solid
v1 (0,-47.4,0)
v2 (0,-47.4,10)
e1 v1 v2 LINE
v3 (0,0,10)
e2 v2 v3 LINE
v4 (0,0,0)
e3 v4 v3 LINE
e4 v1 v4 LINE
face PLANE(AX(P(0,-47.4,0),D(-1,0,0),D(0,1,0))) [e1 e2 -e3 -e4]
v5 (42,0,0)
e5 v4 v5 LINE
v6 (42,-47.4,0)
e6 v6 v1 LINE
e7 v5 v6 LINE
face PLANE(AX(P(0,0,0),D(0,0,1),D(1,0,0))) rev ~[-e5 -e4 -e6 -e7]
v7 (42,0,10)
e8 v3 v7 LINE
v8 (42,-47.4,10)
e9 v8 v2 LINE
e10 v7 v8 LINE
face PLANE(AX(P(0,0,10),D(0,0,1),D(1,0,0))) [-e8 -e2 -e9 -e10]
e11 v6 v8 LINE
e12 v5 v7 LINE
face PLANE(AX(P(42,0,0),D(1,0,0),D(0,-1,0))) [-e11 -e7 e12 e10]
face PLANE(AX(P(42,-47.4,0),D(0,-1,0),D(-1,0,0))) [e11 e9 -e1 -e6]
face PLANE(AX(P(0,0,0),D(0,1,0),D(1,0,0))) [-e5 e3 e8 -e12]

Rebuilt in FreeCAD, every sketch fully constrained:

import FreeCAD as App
import Part
import Sketcher

V = App.Vector
Q = App.Units.Quantity

doc = App.newDocument("Part")
body = doc.addObject("PartDesign::Body", "Body")

# Sketch on XY plane
sketch1 = doc.addObject("Sketcher::SketchObject", "Sketch")
body.addObject(sketch1)
sketch1.AttachmentSupport = (doc.XY_Plane, [""])
sketch1.MapMode = "FlatFace"
sketch1.addGeometry(Part.LineSegment(V(42, 0, 0), V(0, 0, 0)), False)
sketch1.addGeometry(Part.LineSegment(V(0, 0, 0), V(0, -47, 0)), False)
sketch1.addGeometry(Part.LineSegment(V(0, -47, 0), V(42, -47, 0)), False)
sketch1.addGeometry(Part.LineSegment(V(42, -47, 0), V(42, 0, 0)), False)
sketch1.addConstraint(Sketcher.Constraint("Coincident", 0, 2, 1, 1))
sketch1.addConstraint(Sketcher.Constraint("Coincident", 1, 2, 2, 1))
sketch1.addConstraint(Sketcher.Constraint("Coincident", 2, 2, 3, 1))
sketch1.addConstraint(Sketcher.Constraint("Coincident", 3, 2, 0, 1))
sketch1.addConstraint(Sketcher.Constraint("Horizontal", 0))
sketch1.addConstraint(Sketcher.Constraint("Vertical", 1))
sketch1.addConstraint(Sketcher.Constraint("Horizontal", 2))
sketch1.addConstraint(Sketcher.Constraint("Vertical", 3))
sketch1.addConstraint(Sketcher.Constraint("Coincident", 0, 2, -1, 1))
sketch1.addConstraint(Sketcher.Constraint("DistanceX", 0, 2, 0, 1, Q("42 mm")))
sketch1.addConstraint(Sketcher.Constraint("DistanceY", 1, 2, 1, 1, Q("47.4 mm")))
pad1 = doc.addObject("PartDesign::Pad", "Pad")
body.addObject(pad1)
pad1.Profile = sketch1
pad1.Length = 10

doc.recompute()
